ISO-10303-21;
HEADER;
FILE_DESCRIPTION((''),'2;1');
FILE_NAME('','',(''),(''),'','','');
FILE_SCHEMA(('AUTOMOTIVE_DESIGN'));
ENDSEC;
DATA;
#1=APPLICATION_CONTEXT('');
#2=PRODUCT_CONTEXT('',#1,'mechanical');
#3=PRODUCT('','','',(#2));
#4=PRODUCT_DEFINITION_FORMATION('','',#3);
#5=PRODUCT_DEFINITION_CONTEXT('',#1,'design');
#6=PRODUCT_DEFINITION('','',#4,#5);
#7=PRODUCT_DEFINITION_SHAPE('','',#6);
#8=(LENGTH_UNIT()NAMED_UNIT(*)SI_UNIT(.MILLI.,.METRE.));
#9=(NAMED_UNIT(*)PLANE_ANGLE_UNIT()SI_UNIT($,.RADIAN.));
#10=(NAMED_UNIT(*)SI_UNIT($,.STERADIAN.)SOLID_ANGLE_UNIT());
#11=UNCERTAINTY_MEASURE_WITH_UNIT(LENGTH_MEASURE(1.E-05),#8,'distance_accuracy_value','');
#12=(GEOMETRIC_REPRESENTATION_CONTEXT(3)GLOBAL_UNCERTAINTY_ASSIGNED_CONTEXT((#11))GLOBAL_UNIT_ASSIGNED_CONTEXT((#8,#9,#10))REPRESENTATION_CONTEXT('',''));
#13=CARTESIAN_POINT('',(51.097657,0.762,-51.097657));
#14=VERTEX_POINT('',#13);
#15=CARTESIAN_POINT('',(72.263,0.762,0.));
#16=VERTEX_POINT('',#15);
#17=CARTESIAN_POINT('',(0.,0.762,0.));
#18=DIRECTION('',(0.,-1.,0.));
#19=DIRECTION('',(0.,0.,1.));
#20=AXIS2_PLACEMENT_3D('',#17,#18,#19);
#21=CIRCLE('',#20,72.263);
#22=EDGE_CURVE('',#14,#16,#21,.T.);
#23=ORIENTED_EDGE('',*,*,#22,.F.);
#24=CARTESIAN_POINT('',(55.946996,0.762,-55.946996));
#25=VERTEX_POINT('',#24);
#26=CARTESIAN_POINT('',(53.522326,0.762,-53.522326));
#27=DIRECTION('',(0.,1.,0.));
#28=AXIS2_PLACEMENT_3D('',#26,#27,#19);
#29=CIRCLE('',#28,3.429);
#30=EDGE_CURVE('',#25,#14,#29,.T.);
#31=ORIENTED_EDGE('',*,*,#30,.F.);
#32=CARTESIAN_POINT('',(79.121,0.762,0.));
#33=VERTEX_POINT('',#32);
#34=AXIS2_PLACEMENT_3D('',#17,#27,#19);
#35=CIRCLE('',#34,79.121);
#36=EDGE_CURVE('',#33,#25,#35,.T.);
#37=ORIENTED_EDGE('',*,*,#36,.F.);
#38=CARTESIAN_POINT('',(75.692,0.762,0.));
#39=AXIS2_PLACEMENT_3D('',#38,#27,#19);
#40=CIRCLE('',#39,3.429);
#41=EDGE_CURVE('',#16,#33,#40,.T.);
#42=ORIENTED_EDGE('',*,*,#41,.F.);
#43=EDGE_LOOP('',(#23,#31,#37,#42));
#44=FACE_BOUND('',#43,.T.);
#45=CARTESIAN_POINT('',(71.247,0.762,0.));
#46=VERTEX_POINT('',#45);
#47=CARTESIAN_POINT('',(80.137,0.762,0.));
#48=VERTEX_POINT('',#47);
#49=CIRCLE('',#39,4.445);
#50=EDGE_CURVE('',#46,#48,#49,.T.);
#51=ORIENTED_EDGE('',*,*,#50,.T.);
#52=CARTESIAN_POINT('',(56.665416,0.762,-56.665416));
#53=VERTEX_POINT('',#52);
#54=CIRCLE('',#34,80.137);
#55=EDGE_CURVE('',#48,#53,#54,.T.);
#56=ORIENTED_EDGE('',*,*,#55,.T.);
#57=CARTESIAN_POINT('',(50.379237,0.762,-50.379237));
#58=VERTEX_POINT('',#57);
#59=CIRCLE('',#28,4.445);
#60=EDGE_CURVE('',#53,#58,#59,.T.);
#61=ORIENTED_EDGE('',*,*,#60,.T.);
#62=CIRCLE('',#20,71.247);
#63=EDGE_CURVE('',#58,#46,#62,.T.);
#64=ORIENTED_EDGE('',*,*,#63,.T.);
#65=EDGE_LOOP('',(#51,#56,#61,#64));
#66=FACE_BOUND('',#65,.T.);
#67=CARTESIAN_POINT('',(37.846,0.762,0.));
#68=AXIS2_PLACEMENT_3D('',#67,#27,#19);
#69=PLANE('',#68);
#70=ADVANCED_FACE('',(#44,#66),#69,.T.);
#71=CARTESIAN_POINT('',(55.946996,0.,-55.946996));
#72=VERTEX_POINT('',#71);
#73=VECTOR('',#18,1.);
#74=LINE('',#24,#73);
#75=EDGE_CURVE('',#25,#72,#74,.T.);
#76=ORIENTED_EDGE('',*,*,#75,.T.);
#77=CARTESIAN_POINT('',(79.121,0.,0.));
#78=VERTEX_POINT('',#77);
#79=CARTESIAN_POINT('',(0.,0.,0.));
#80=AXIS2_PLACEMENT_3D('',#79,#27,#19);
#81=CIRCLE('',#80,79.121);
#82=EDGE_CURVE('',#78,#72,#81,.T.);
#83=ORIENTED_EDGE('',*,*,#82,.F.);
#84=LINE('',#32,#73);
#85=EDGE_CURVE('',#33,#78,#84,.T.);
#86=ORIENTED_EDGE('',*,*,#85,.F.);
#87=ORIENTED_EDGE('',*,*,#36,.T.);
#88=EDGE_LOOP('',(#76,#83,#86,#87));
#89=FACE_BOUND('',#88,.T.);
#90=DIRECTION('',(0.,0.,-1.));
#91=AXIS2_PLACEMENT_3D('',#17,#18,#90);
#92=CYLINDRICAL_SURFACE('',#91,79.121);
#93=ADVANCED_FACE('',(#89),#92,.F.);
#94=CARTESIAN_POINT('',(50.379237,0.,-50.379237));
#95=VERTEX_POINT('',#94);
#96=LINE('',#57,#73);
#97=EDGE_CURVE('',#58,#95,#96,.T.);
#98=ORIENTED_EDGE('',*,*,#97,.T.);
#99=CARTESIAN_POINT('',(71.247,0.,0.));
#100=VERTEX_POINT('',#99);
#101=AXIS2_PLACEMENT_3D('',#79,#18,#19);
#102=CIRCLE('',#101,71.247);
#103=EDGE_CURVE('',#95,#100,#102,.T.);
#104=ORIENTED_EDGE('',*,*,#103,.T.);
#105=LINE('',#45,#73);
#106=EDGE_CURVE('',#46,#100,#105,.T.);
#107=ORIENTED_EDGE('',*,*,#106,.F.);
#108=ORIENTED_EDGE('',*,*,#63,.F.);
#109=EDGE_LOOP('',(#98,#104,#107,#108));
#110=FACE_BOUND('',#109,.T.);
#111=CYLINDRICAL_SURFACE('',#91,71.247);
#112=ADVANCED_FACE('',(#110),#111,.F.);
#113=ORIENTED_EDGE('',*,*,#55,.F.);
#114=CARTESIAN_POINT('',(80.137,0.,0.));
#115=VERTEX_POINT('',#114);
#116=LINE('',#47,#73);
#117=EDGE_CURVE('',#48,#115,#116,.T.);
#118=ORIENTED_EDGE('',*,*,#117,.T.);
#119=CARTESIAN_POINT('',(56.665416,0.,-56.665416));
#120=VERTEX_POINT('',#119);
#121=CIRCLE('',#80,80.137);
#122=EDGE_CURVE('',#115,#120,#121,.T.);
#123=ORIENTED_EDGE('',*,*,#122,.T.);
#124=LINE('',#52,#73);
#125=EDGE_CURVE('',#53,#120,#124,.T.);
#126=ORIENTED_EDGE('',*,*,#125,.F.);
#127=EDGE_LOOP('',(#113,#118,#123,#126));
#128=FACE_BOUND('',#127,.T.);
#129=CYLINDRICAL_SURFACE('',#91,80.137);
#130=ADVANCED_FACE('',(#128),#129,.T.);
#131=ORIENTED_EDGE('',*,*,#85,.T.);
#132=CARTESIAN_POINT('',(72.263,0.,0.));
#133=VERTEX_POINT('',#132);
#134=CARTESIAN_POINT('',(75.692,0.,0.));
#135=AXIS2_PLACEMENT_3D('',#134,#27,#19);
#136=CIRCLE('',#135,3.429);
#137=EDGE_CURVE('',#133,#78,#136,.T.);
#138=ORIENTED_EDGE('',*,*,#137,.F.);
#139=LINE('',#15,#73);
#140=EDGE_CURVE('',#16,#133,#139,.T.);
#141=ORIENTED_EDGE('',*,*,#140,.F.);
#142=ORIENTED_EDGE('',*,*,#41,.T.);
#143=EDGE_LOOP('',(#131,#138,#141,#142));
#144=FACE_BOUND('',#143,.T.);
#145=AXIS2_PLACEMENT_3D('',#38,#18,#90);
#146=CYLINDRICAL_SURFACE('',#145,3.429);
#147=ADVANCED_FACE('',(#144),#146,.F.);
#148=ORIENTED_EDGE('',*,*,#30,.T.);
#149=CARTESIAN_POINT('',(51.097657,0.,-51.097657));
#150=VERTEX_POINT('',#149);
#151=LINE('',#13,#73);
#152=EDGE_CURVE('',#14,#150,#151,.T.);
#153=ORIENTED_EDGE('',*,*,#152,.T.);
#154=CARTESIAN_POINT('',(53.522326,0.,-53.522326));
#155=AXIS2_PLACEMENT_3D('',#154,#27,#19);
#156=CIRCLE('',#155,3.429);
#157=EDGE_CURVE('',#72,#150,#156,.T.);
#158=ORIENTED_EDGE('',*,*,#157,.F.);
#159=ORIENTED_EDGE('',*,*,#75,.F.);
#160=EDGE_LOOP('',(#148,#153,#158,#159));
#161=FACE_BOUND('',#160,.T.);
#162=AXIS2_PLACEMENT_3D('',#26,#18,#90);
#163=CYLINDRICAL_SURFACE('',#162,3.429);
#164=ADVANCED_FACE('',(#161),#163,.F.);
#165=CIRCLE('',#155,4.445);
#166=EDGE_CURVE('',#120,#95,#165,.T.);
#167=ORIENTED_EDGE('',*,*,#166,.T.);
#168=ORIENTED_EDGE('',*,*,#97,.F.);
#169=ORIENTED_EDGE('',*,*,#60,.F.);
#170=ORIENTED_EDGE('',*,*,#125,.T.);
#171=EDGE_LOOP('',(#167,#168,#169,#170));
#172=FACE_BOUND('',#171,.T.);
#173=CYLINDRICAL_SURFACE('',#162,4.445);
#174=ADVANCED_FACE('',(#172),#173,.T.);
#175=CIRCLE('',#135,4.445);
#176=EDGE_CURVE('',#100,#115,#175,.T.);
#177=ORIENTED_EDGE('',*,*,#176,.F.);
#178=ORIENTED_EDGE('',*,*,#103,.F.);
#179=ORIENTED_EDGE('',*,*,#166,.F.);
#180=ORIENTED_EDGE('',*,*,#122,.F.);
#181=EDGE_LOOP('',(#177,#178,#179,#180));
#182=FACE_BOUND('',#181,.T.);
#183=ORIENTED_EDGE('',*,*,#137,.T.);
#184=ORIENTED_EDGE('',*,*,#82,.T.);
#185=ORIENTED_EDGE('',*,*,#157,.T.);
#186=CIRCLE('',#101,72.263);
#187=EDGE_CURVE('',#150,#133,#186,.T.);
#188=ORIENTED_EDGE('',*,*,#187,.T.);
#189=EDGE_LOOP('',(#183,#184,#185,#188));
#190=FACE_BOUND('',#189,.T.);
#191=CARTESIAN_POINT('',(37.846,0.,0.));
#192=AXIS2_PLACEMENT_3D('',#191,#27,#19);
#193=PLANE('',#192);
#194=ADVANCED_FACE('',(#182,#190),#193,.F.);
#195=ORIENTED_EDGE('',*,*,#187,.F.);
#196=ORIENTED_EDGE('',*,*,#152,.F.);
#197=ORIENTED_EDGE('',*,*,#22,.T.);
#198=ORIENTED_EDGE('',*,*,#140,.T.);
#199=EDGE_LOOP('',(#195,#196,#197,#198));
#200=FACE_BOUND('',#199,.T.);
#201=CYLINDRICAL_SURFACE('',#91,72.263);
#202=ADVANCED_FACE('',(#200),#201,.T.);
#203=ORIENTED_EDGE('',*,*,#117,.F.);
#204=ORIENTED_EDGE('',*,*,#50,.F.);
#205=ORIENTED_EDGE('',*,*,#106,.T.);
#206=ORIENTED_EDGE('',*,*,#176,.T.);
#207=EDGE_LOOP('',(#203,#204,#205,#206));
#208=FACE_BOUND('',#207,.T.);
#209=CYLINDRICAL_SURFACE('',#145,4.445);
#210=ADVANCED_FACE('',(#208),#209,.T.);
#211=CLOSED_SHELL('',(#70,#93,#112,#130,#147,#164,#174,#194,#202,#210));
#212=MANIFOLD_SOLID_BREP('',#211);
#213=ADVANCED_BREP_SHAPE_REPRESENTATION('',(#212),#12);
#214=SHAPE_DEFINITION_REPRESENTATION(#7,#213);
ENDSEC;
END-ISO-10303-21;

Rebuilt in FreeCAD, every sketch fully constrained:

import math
import FreeCAD as App
import Part
import Sketcher

V = App.Vector
Q = App.Units.Quantity

doc = App.newDocument("Part")
params = doc.addObject("Spreadsheet::Sheet", "Params")
for row, (alias, value) in enumerate([
    ("sketch1_radius", "3.155 in"),
    ("sketch1_radius2", "0.175 in"),
    ("sketch1_radius3", "3.115 in"),
    ("pad1_length", "0.03 in"),
], start=1):
    params.set(f"A{row}", alias)
    params.set(f"B{row}", "=" + value)
    params.setAlias(f"B{row}", alias)

body = doc.addObject("PartDesign::Body", "Body")

# Sketch on XZ plane
sketch1 = body.newObject("Sketcher::SketchObject", "Sketch")
sketch1.AttachmentSupport = (doc.getObject("XZ_Plane"), [""])
sketch1.MapMode = "FlatFace"
sketch1.addGeometry(Part.ArcOfCircle(Part.Circle(V(0, 0, 0), V(0, 0, 1), 80.1), math.radians(-45), math.radians(0)), False)
sketch1.addGeometry(Part.ArcOfCircle(Part.Circle(V(53.5, -53.5, 0), V(0, 0, 1), 4.4), math.radians(135), math.radians(315)), False)
sketch1.addGeometry(Part.ArcOfCircle(Part.Circle(V(0, 0, 0), V(0, 0, 1), 71.2), math.radians(-45), math.radians(0)), False)
sketch1.addGeometry(Part.ArcOfCircle(Part.Circle(V(75.7, 0, 0), V(0, 0, 1), 4.4), math.radians(0), math.radians(180)), False)
sketch1.addGeometry(Part.ArcOfCircle(Part.Circle(V(0, 0, 0), V(0, 0, 1), 79.1), math.radians(-45), math.radians(0)), False)
sketch1.addGeometry(Part.ArcOfCircle(Part.Circle(V(75.7, 0, 0), V(0, 0, 1), 3.4), math.radians(0), math.radians(180)), False)
sketch1.addGeometry(Part.ArcOfCircle(Part.Circle(V(0, 0, 0), V(0, 0, 1), 72.3), math.radians(-45), math.radians(0)), False)
sketch1.addGeometry(Part.ArcOfCircle(Part.Circle(V(53.5, -53.5, 0), V(0, 0, 1), 3.4), math.radians(135), math.radians(315)), False)
sketch1.addConstraint(Sketcher.Constraint("Tangent", 0, 1, 1, 2))
sketch1.addConstraint(Sketcher.Constraint("Tangent", 1, 1, 2, 1))
sketch1.addConstraint(Sketcher.Constraint("Tangent", 2, 2, 3, 2))
sketch1.addConstraint(Sketcher.Constraint("Tangent", 3, 1, 0, 2))
sketch1.addConstraint(Sketcher.Constraint("Tangent", 4, 2, 5, 1))
sketch1.addConstraint(Sketcher.Constraint("Tangent", 5, 2, 6, 2))
sketch1.addConstraint(Sketcher.Constraint("Tangent", 6, 1, 7, 1))
sketch1.addConstraint(Sketcher.Constraint("Tangent", 7, 2, 4, 1))
sketch1.addConstraint(Sketcher.Constraint("Coincident", 0, 3, -1, 1))
sketch1.addConstraint(Sketcher.Constraint("Coincident", 2, 3, -1, 1))
sketch1.addConstraint(Sketcher.Constraint("Coincident", 4, 3, -1, 1))
sketch1.addConstraint(Sketcher.Constraint("Coincident", 6, 3, -1, 1))
sketch1.addConstraint(Sketcher.Constraint("Coincident", 5, 3, 3, 3))
sketch1.addConstraint(Sketcher.Constraint("PointOnObject", 3, 3, -1))
sketch1.addConstraint(Sketcher.Constraint("Radius", 0, Q("3.155 in")))
sketch1.addConstraint(Sketcher.Constraint("Radius", 1, Q("0.175 in")))
sketch1.addConstraint(Sketcher.Constraint("Radius", 4, Q("3.115 in")))
sketch1.addConstraint(Sketcher.Constraint("DistanceX", 7, 3, 0, 1, Q("3.14309 mm")))
sketch1.addConstraint(Sketcher.Constraint("DistanceX", 1, 1, 1, 3, Q("3.14309 mm")))
sketch1.setExpression("Constraints[14]", "Params.sketch1_radius")
sketch1.setExpression("Constraints[15]", "Params.sketch1_radius2")
sketch1.setExpression("Constraints[16]", "Params.sketch1_radius3")
pad1 = body.newObject("PartDesign::Pad", "Pad")
pad1.Profile = sketch1
pad1.setExpression("Length", "Params.pad1_length")
pad1.Reversed = True

doc.recompute()
